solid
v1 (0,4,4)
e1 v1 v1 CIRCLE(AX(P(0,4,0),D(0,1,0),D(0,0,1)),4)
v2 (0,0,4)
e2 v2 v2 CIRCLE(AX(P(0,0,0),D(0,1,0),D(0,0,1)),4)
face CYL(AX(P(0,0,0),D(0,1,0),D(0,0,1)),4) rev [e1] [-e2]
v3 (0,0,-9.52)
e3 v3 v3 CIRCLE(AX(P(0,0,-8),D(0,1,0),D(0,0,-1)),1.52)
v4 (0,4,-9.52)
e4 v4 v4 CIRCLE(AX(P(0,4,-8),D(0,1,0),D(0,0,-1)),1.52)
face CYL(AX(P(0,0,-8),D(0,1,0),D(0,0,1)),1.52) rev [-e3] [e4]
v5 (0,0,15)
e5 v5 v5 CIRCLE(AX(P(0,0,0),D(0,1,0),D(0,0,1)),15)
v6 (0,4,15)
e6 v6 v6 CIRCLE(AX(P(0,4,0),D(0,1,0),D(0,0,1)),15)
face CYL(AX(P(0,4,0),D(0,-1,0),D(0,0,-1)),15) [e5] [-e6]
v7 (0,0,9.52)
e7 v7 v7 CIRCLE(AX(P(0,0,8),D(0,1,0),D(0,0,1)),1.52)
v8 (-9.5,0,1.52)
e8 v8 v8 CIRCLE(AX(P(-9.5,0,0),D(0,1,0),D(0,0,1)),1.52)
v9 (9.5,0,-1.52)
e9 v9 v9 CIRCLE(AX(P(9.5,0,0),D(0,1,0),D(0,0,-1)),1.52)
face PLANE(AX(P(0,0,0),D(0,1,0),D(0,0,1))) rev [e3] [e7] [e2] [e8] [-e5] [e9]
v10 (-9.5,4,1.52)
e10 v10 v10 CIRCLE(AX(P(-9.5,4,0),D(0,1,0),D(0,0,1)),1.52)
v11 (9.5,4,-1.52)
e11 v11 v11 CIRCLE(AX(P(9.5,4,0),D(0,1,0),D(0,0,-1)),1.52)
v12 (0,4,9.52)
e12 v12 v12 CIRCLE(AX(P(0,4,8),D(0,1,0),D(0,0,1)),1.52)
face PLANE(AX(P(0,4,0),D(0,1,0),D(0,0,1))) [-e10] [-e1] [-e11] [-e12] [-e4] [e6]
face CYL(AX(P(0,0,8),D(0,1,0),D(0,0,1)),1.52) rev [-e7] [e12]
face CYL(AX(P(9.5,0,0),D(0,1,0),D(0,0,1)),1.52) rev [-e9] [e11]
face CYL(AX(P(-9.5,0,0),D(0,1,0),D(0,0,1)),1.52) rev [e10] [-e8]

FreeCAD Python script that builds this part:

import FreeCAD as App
import Part
import Sketcher
from FreeCAD import Vector

doc = App.newDocument("Part")
body = doc.addObject("PartDesign::Body", "Body")

# Sketch on XZ plane
sketch1 = body.newObject("Sketcher::SketchObject", "Sketch")
sketch1.AttachmentSupport = (doc.getObject("XZ_Plane"), [""])
sketch1.MapMode = "FlatFace"
sketch1.addGeometry(Part.Circle(Vector(0, 0, 0), Vector(0, 0, 1), 15), False)
sketch1.addConstraint([
    Sketcher.Constraint("Coincident", 0, 3, -1, 1),
    Sketcher.Constraint("Diameter", 0, 30.0),
])
pad1 = body.newObject("PartDesign::Pad", "Pad")
pad1.Profile = sketch1
pad1.Length = 4
pad1.Reversed = True

# Sketch on XZ plane
sketch2 = body.newObject("Sketcher::SketchObject", "Sketch001")
sketch2.AttachmentSupport = (doc.getObject("XZ_Plane"), [""])
sketch2.MapMode = "FlatFace"
sketch2.AttachmentOffset = App.Placement(Vector(0, 0, -4), App.Rotation())
sketch2.addGeometry([
    Part.Circle(Vector(-9.5, 0, 0), Vector(0, 0, 1), 1.52),  # 0
    Part.Circle(Vector(0, 8, 0), Vector(0, 0, 1), 1.52),  # 1
    Part.Circle(Vector(9.5, 0, 0), Vector(0, 0, 1), 1.52),  # 2
    Part.Circle(Vector(0, -8, 0), Vector(0, 0, 1), 1.52),  # 3
    Part.Circle(Vector(0, 0, 0), Vector(0, 0, 1), 4),  # 4
], False)
sketch2.addConstraint([
    Sketcher.Constraint("Coincident", 4, 3, -1, 1),
    Sketcher.Constraint("Equal", 0, 1),
    Sketcher.Constraint("Equal", 1, 2),
    Sketcher.Constraint("Equal", 2, 3),
    Sketcher.Constraint("Symmetric", 0, 3, 2, 3, -1, 1),
    Sketcher.Constraint("Symmetric", 1, 3, 3, 3, -1, 1),
    Sketcher.Constraint("PointOnObject", 0, 3, -1),
    Sketcher.Constraint("PointOnObject", 1, 3, -2),
    Sketcher.Constraint("Diameter", 4, 8.0),
    Sketcher.Constraint("Diameter", 0, 3.04),
    Sketcher.Constraint("DistanceY", -1, 1, 1, 3, 8.0),
    Sketcher.Constraint("DistanceX", 0, 3, 2, 3, 19.0),
])
pocket1 = body.newObject("PartDesign::Pocket", "Pocket")
pocket1.Profile = sketch2
pocket1.Length = 4
pocket1.Reversed = True

doc.recompute()
